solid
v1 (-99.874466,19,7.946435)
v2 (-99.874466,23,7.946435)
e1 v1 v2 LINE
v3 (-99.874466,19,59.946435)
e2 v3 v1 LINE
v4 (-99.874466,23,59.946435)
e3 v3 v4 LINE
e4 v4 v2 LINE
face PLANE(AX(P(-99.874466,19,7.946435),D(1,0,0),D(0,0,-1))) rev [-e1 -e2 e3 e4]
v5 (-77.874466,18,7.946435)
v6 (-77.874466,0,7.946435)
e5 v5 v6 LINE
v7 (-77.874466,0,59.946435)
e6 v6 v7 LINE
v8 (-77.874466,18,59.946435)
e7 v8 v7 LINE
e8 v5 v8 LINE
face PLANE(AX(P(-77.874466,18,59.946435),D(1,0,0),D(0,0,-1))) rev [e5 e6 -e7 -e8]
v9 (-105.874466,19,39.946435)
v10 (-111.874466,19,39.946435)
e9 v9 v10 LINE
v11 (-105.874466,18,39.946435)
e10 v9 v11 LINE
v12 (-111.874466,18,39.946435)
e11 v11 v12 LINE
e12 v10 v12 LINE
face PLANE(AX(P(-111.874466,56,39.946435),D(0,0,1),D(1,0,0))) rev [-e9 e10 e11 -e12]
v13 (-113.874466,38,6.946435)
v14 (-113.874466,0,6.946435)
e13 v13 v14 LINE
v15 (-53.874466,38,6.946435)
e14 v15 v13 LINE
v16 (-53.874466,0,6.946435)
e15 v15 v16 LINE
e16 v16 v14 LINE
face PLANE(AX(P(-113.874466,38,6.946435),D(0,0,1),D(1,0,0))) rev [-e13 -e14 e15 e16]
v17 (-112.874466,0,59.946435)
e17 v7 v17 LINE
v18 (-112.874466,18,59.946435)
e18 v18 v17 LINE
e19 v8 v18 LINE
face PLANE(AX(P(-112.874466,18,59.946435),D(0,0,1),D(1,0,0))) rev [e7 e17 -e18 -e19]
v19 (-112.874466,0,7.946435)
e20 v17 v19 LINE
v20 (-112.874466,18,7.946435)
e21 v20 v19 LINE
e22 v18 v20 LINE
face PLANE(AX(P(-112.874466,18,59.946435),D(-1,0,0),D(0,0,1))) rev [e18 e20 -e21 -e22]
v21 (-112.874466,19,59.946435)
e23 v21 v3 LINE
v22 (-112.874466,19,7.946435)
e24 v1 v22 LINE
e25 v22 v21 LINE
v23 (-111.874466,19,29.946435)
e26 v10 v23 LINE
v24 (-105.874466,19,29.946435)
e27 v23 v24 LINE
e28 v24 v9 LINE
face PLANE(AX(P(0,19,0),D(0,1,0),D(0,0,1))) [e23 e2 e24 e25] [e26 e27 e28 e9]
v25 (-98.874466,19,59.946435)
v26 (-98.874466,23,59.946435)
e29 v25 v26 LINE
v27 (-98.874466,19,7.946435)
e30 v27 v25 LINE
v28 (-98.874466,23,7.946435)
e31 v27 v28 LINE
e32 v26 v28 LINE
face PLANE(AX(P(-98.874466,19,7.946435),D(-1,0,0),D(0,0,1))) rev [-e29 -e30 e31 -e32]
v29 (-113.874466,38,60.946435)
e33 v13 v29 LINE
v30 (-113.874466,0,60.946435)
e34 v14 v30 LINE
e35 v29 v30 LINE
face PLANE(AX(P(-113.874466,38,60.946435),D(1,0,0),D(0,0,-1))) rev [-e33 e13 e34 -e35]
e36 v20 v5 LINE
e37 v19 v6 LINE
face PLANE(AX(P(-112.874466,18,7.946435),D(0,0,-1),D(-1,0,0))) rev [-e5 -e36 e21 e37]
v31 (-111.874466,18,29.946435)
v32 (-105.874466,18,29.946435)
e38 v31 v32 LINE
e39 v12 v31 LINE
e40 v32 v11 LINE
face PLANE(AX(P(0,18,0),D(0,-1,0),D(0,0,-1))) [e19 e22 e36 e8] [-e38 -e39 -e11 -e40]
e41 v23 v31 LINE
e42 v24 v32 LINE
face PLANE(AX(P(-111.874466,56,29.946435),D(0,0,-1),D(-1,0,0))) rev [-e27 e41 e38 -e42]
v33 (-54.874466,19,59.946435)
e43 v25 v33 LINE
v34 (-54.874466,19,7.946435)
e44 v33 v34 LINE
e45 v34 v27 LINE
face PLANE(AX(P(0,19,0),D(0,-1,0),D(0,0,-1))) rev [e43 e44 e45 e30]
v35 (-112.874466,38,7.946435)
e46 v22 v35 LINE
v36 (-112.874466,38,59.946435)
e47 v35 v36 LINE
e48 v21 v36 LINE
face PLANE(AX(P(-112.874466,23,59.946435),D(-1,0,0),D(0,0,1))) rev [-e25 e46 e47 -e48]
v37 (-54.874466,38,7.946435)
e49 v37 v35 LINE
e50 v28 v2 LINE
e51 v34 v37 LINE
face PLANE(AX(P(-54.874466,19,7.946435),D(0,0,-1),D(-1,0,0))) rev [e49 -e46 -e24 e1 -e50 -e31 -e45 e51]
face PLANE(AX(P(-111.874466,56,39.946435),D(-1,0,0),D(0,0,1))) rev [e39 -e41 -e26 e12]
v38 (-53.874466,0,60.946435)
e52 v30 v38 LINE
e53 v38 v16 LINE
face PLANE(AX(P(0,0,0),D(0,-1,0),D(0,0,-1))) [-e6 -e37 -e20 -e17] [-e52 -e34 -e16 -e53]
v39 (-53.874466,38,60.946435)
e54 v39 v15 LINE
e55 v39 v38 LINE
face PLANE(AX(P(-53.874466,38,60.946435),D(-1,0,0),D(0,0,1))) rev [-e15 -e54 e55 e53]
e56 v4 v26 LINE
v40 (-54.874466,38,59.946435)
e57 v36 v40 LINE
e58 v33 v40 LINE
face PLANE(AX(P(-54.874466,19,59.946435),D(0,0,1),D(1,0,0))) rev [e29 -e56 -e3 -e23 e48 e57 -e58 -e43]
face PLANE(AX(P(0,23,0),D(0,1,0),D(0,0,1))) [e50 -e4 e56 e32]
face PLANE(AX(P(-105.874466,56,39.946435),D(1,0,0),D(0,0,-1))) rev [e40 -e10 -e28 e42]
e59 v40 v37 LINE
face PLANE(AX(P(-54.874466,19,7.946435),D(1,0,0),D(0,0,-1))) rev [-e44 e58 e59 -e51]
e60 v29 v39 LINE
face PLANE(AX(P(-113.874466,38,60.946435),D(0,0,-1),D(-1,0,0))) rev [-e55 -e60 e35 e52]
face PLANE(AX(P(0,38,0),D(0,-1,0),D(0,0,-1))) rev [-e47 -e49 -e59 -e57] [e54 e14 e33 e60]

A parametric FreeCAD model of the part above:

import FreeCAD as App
import Part
import Sketcher
from FreeCAD import Vector


def add_polygon(sketch, points):
    """Adds a closed chain of lines whose ends are joined by coincident constraints."""
    first, n = sketch.GeometryCount, len(points)
    for a, b in zip(points, points[1:] + points[:1]):
        sketch.addGeometry(Part.LineSegment(App.Vector(*a, 0), App.Vector(*b, 0)), False)
    for i in range(n):
        sketch.addConstraint(Sketcher.Constraint("Coincident", first + i, 2, first + (i + 1) % n, 1))

doc = App.newDocument("Part")
body = doc.addObject("PartDesign::Body", "Body")

# Sketch on XZ plane
sketch1 = doc.addObject("Sketcher::SketchObject", "Sketch")
body.addObject(sketch1)
sketch1.AttachmentSupport = (doc.XZ_Plane, [""])
sketch1.MapMode = "FlatFace"
add_polygon(sketch1, [(-114, 7), (-114, 61), (-54, 61), (-54, 7)])  # lines 0-3
sketch1.addConstraint(Sketcher.Constraint("Vertical", 0))
sketch1.addConstraint(Sketcher.Constraint("Horizontal", 1))
sketch1.addConstraint(Sketcher.Constraint("Vertical", 2))
sketch1.addConstraint(Sketcher.Constraint("Horizontal", 3))
sketch1.addConstraint(Sketcher.Constraint("DistanceX", 1, 1, 1, 2, 60.0))
sketch1.addConstraint(Sketcher.Constraint("DistanceY", 0, 1, 0, 2, 54.0))
sketch1.addConstraint(Sketcher.Constraint("DistanceX", 0, 2, -1, 1, 113.874466))
sketch1.addConstraint(Sketcher.Constraint("DistanceY", -1, 1, 0, 2, 60.946435))
pad1 = doc.addObject("PartDesign::Pad", "Pad")
body.addObject(pad1)
pad1.Profile = sketch1
pad1.Length = 38
pad1.Reversed = True

# Sketch on XZ plane
sketch2 = doc.addObject("Sketcher::SketchObject", "Sketch001")
body.addObject(sketch2)
sketch2.AttachmentSupport = (doc.XZ_Plane, [""])
sketch2.MapMode = "FlatFace"
sketch2.AttachmentOffset = App.Placement(Vector(0, 0, -38), App.Rotation())
add_polygon(sketch2, [(-99, 8), (-99, 60), (-55, 60), (-55, 8)])  # lines 0-3
sketch2.addConstraint(Sketcher.Constraint("Vertical", 0))
sketch2.addConstraint(Sketcher.Constraint("Horizontal", 1))
sketch2.addConstraint(Sketcher.Constraint("Vertical", 2))
sketch2.addConstraint(Sketcher.Constraint("Horizontal", 3))
sketch2.addConstraint(Sketcher.Constraint("DistanceX", 1, 1, 1, 2, 44.0))
sketch2.addConstraint(Sketcher.Constraint("DistanceY", 0, 1, 0, 2, 52.0))
sketch2.addConstraint(Sketcher.Constraint("DistanceX", 0, 2, -1, 1, 98.874466))
sketch2.addConstraint(Sketcher.Constraint("DistanceY", -1, 1, 0, 2, 59.946435))
pocket1 = doc.addObject("PartDesign::Pocket", "Pocket")
body.addObject(pocket1)
pocket1.Profile = sketch2
pocket1.Length = 19
pocket1.Reversed = True

# Sketch on XZ plane
sketch3 = doc.addObject("Sketcher::SketchObject", "Sketch002")
body.addObject(sketch3)
sketch3.AttachmentSupport = (doc.XZ_Plane, [""])
sketch3.MapMode = "FlatFace"
add_polygon(sketch3, [(-78, 8), (-78, 60), (-113, 60), (-113, 8)])  # lines 0-3
sketch3.addConstraint(Sketcher.Constraint("Vertical", 0))
sketch3.addConstraint(Sketcher.Constraint("Horizontal", 1))
sketch3.addConstraint(Sketcher.Constraint("Vertical", 2))
sketch3.addConstraint(Sketcher.Constraint("Horizontal", 3))
sketch3.addConstraint(Sketcher.Constraint("DistanceX", 1, 2, 1, 1, 35.0))
sketch3.addConstraint(Sketcher.Constraint("DistanceY", 0, 1, 0, 2, 52.0))
sketch3.addConstraint(Sketcher.Constraint("DistanceX", 0, 2, -1, 1, 77.874466))
sketch3.addConstraint(Sketcher.Constraint("DistanceY", -1, 1, 0, 2, 59.946435))
pocket2 = doc.addObject("PartDesign::Pocket", "Pocket001")
body.addObject(pocket2)
pocket2.Profile = sketch3
pocket2.Length = 18

# Sketch on XZ plane
sketch4 = doc.addObject("Sketcher::SketchObject", "Sketch003")
body.addObject(sketch4)
sketch4.AttachmentSupport = (doc.XZ_Plane, [""])
sketch4.MapMode = "FlatFace"
sketch4.AttachmentOffset = App.Placement(Vector(0, 0, -18), App.Rotation())
add_polygon(sketch4, [(-106, 30), (-106, 40), (-112, 40), (-112, 30)])  # lines 0-3
sketch4.addConstraint(Sketcher.Constraint("Vertical", 0))
sketch4.addConstraint(Sketcher.Constraint("Horizontal", 1))
sketch4.addConstraint(Sketcher.Constraint("Vertical", 2))
sketch4.addConstraint(Sketcher.Constraint("Horizontal", 3))
sketch4.addConstraint(Sketcher.Constraint("DistanceX", 1, 2, 1, 1, 6.0))
sketch4.addConstraint(Sketcher.Constraint("DistanceY", 0, 1, 0, 2, 10.0))
sketch4.addConstraint(Sketcher.Constraint("DistanceX", 0, 2, -1, 1, 105.874466))
sketch4.addConstraint(Sketcher.Constraint("DistanceY", -1, 1, 0, 2, 39.946435))
pocket3 = doc.addObject("PartDesign::Pocket", "Pocket002")
body.addObject(pocket3)
pocket3.Profile = sketch4
pocket3.Length = 38

# Sketch on XZ plane
sketch5 = doc.addObject("Sketcher::SketchObject", "Sketch004")
body.addObject(sketch5)
sketch5.AttachmentSupport = (doc.XZ_Plane, [""])
sketch5.MapMode = "FlatFace"
sketch5.AttachmentOffset = App.Placement(Vector(0, 0, -38), App.Rotation())
add_polygon(sketch5, [(-113, 8), (-113, 60), (-99, 60), (-99, 8)])  # lines 0-3
sketch5.addConstraint(Sketcher.Constraint("Vertical", 0))
sketch5.addConstraint(Sketcher.Constraint("Horizontal", 1))
sketch5.addConstraint(Sketcher.Constraint("Vertical", 2))
sketch5.addConstraint(Sketcher.Constraint("Horizontal", 3))
sketch5.addConstraint(Sketcher.Constraint("DistanceX", 1, 1, 1, 2, 14.0))
sketch5.addConstraint(Sketcher.Constraint("DistanceY", 0, 1, 0, 2, 52.0))
sketch5.addConstraint(Sketcher.Constraint("DistanceX", 0, 2, -1, 1, 112.874466))
sketch5.addConstraint(Sketcher.Constraint("DistanceY", -1, 1, 0, 2, 59.946435))
pocket4 = doc.addObject("PartDesign::Pocket", "Pocket003")
body.addObject(pocket4)
pocket4.Profile = sketch5
pocket4.Length = 15
pocket4.Reversed = True

# Sketch on XZ plane
sketch6 = doc.addObject("Sketcher::SketchObject", "Sketch005")
body.addObject(sketch6)
sketch6.AttachmentSupport = (doc.XZ_Plane, [""])
sketch6.MapMode = "FlatFace"
sketch6.AttachmentOffset = App.Placement(Vector(0, 0, -23), App.Rotation())
add_polygon(sketch6, [(-113, 8), (-113, 60), (-100, 60), (-100, 8)])  # lines 0-3
sketch6.addConstraint(Sketcher.Constraint("Vertical", 0))
sketch6.addConstraint(Sketcher.Constraint("Horizontal", 1))
sketch6.addConstraint(Sketcher.Constraint("Vertical", 2))
sketch6.addConstraint(Sketcher.Constraint("Horizontal", 3))
sketch6.addConstraint(Sketcher.Constraint("DistanceX", 1, 1, 1, 2, 13.0))
sketch6.addConstraint(Sketcher.Constraint("DistanceY", 0, 1, 0, 2, 52.0))
sketch6.addConstraint(Sketcher.Constraint("DistanceX", 0, 2, -1, 1, 112.874466))
sketch6.addConstraint(Sketcher.Constraint("DistanceY", -1, 1, 0, 2, 59.946435))
pocket5 = doc.addObject("PartDesign::Pocket", "Pocket004")
body.addObject(pocket5)
pocket5.Profile = sketch6
pocket5.Length = 4
pocket5.Reversed = True

doc.recompute()
